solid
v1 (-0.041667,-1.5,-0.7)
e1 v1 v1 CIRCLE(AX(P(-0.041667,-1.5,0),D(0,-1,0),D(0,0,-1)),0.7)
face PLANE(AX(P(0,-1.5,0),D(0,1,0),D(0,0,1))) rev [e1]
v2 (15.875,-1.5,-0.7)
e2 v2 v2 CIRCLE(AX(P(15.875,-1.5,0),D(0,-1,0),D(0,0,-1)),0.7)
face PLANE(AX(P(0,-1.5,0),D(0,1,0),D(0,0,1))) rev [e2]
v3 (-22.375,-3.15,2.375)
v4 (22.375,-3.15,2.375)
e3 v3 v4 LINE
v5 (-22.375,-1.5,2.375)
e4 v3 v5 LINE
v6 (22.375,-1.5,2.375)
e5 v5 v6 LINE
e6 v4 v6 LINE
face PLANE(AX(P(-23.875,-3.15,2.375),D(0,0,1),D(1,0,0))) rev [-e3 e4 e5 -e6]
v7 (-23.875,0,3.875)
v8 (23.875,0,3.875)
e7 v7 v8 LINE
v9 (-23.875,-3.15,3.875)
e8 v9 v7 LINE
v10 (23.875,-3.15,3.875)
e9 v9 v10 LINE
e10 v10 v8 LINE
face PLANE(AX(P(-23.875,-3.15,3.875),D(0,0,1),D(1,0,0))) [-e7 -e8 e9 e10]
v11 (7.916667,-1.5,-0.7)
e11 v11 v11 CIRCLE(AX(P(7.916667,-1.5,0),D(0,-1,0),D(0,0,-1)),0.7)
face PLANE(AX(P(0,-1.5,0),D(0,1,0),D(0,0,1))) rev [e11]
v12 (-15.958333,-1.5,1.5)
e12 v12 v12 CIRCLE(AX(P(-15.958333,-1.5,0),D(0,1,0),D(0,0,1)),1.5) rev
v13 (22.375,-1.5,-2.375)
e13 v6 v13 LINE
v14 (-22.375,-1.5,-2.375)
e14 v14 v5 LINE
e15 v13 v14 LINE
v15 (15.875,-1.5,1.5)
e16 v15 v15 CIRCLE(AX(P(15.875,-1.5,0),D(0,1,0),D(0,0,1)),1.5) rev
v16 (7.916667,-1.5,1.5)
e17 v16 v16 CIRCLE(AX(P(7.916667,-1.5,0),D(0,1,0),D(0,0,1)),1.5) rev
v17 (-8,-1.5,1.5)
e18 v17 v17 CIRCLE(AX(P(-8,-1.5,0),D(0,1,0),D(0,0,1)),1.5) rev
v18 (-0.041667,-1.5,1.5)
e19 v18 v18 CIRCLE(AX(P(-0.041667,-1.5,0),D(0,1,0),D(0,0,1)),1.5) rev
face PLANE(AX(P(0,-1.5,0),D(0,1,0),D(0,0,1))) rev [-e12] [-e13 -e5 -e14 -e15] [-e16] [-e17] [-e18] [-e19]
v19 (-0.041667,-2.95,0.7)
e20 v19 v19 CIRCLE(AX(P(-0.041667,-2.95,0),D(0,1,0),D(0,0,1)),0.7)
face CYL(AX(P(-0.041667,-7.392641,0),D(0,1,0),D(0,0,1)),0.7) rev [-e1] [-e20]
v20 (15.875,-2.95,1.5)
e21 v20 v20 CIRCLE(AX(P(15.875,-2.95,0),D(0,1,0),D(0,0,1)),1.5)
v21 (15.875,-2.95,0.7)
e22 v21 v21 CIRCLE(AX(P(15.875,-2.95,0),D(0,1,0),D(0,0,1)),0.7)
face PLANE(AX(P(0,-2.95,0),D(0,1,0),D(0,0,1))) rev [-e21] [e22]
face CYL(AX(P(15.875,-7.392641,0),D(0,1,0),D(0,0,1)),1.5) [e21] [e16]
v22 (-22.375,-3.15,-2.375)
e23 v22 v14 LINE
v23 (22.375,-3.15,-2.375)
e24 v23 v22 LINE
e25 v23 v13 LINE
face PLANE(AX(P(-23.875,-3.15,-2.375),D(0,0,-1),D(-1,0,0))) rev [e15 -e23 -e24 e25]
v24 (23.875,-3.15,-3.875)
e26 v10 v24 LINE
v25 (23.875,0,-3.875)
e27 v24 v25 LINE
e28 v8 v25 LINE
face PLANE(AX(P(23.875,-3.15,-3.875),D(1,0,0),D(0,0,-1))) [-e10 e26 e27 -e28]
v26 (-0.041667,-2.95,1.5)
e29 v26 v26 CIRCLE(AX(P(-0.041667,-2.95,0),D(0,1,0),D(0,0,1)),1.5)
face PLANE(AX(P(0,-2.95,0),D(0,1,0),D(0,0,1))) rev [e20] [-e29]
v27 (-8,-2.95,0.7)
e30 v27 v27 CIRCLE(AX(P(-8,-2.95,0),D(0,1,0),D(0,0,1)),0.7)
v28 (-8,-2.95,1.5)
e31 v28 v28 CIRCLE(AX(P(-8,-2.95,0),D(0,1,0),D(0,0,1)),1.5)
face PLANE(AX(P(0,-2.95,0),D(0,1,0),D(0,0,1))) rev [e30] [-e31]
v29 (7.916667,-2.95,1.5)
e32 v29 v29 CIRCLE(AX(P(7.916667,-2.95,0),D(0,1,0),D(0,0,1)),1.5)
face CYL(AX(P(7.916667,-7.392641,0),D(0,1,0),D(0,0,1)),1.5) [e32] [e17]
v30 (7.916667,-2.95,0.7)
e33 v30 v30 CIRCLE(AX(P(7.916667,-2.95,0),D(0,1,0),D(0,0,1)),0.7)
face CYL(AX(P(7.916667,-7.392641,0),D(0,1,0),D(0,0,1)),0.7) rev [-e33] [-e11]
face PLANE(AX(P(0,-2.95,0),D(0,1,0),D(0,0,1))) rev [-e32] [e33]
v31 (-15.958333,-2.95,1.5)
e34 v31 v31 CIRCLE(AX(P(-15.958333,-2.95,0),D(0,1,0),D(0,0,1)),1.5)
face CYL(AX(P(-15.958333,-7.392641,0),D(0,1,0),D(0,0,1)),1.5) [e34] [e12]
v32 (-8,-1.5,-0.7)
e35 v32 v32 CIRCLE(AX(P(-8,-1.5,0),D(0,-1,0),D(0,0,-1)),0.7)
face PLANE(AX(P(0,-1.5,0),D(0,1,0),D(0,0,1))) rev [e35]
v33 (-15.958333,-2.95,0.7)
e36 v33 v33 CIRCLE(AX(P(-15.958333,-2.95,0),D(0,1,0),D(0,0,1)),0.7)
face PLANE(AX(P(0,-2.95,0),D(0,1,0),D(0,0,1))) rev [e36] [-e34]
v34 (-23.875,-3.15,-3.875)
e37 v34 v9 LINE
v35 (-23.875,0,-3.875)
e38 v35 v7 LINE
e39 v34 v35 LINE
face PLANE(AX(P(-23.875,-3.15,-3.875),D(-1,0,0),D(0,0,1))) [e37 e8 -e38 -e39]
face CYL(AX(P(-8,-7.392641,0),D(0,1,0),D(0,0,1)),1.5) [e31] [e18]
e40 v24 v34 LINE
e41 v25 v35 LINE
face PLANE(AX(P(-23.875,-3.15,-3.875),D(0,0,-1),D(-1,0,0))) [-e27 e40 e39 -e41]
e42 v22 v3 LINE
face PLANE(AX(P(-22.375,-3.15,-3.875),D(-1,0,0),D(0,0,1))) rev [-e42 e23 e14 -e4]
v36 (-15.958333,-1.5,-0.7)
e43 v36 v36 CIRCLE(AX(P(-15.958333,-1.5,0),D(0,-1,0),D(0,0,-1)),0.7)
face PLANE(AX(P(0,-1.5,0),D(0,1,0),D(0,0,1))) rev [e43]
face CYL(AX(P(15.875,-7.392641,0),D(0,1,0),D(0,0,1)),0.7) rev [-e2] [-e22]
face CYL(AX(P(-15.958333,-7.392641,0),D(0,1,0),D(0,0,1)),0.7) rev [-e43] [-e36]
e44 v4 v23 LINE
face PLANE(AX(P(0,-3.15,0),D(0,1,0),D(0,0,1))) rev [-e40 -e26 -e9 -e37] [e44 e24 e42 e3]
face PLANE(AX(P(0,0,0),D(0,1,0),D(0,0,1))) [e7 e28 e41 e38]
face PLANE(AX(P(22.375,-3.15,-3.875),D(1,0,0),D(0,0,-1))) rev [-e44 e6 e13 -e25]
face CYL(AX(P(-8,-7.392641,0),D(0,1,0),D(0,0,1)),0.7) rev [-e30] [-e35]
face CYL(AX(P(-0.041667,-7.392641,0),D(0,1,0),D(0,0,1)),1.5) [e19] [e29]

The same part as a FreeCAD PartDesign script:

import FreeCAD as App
import Part
import Sketcher
Q = App.Units.Quantity


def faces_at(feature, points):
    """Names of the faces that lie closest to the given points."""
    faces = feature.Shape.Faces
    near = lambda p: min(range(len(faces)), key=lambda i: faces[i].distToShape(Part.Vertex(*p))[0])
    return sorted({f"Face{near(p) + 1}" for p in points})


def add_polygon(sketch, points):
    """Adds a closed chain of lines whose ends are joined by coincident constraints."""
    first, n = sketch.GeometryCount, len(points)
    for a, b in zip(points, points[1:] + points[:1]):
        sketch.addGeometry(Part.LineSegment(App.Vector(*a, 0), App.Vector(*b, 0)), False)
    for i in range(n):
        sketch.addConstraint(Sketcher.Constraint("Coincident", first + i, 2, first + (i + 1) % n, 1))

doc = App.newDocument("Part")
body = doc.addObject("PartDesign::Body", "Body")

# Sketch on XZ plane
sketch1 = body.newObject("Sketcher::SketchObject", "Sketch")
sketch1.AttachmentSupport = (doc.getObject("XZ_Plane"), [""])
sketch1.MapMode = "FlatFace"
add_polygon(sketch1, [(-23.875, -3.875), (-23.875, 3.875), (23.875, 3.875), (23.875, -3.875)])  # lines 0-3
sketch1.addConstraint(Sketcher.Constraint("Vertical", 0))
sketch1.addConstraint(Sketcher.Constraint("Horizontal", 1))
sketch1.addConstraint(Sketcher.Constraint("Vertical", 2))
sketch1.addConstraint(Sketcher.Constraint("Horizontal", 3))
sketch1.addConstraint(Sketcher.Constraint("Symmetric", 0, 2, 2, 2, -1, 1))
sketch1.addConstraint(Sketcher.Constraint("DistanceX", 1, 1, 1, 2, Q("47.75 mm")))
sketch1.addConstraint(Sketcher.Constraint("DistanceY", 0, 1, 0, 2, Q("7.75 mm")))
pad1 = body.newObject("PartDesign::Pad", "Pad")
pad1.Profile = sketch1
pad1.Length = 3.15
doc.recompute()

thickness = body.newObject("PartDesign::Thickness", "Thickness")
thickness.Base = (pad1, faces_at(pad1, [(0, -3.15, 0)]))
thickness.Value = 1.5
thickness.Reversed = True
thickness.Join = "Intersection"

# Sketch on XZ plane
sketch2 = body.newObject("Sketcher::SketchObject", "Sketch001")
sketch2.AttachmentSupport = (doc.getObject("XZ_Plane"), [""])
sketch2.MapMode = "FlatFace"
sketch2.AttachmentOffset = App.Placement(App.Vector(0, 0, 1.5), App.Rotation())
sketch2.addGeometry(Part.Circle(App.Vector(-15.958333, 0, 0), App.Vector(0, 0, 1), 1.5), False)
sketch2.addGeometry(Part.Circle(App.Vector(-15.958333, 0, 0), App.Vector(0, 0, 1), 0.7), False)
sketch2.addGeometry(Part.Circle(App.Vector(-8, 0, 0), App.Vector(0, 0, 1), 1.5), False)
sketch2.addGeometry(Part.Circle(App.Vector(-8, 0, 0), App.Vector(0, 0, 1), 0.7), False)
sketch2.addGeometry(Part.Circle(App.Vector(-0.041667, 0, 0), App.Vector(0, 0, 1), 1.5), False)
sketch2.addGeometry(Part.Circle(App.Vector(-0.041667, 0, 0), App.Vector(0, 0, 1), 0.7), False)
sketch2.addGeometry(Part.Circle(App.Vector(7.916667, 0, 0), App.Vector(0, 0, 1), 1.5), False)
sketch2.addGeometry(Part.Circle(App.Vector(7.916667, 0, 0), App.Vector(0, 0, 1), 0.7), False)
sketch2.addGeometry(Part.Circle(App.Vector(15.875, 0, 0), App.Vector(0, 0, 1), 1.5), False)
sketch2.addGeometry(Part.Circle(App.Vector(15.875, 0, 0), App.Vector(0, 0, 1), 0.7), False)
sketch2.addConstraint(Sketcher.Constraint("Coincident", 1, 3, 0, 3))
sketch2.addConstraint(Sketcher.Constraint("Coincident", 3, 3, 2, 3))
sketch2.addConstraint(Sketcher.Constraint("Coincident", 5, 3, 4, 3))
sketch2.addConstraint(Sketcher.Constraint("Coincident", 7, 3, 6, 3))
sketch2.addConstraint(Sketcher.Constraint("Coincident", 9, 3, 8, 3))
sketch2.addConstraint(Sketcher.Constraint("Equal", 0, 2))
sketch2.addConstraint(Sketcher.Constraint("Equal", 1, 3))
sketch2.addConstraint(Sketcher.Constraint("Equal", 2, 4))
sketch2.addConstraint(Sketcher.Constraint("Equal", 3, 5))
sketch2.addConstraint(Sketcher.Constraint("Equal", 4, 6))
sketch2.addConstraint(Sketcher.Constraint("Equal", 5, 7))
sketch2.addConstraint(Sketcher.Constraint("Equal", 6, 8))
sketch2.addConstraint(Sketcher.Constraint("Equal", 7, 9))
sketch2.addConstraint(Sketcher.Constraint("PointOnObject", 0, 3, -1))
sketch2.addConstraint(Sketcher.Constraint("PointOnObject", 2, 3, -1))
sketch2.addConstraint(Sketcher.Constraint("PointOnObject", 4, 3, -1))
sketch2.addConstraint(Sketcher.Constraint("PointOnObject", 6, 3, -1))
sketch2.addConstraint(Sketcher.Constraint("PointOnObject", 8, 3, -1))
sketch2.addConstraint(Sketcher.Constraint("Diameter", 0, Q("3 mm")))
sketch2.addConstraint(Sketcher.Constraint("Diameter", 1, Q("1.4 mm")))
sketch2.addConstraint(Sketcher.Constraint("DistanceX", 2, 3, -1, 1, Q("8 mm")))
sketch2.addConstraint(Sketcher.Constraint("DistanceX", -1, 1, 8, 3, Q("15.875 mm")))
sketch2.addConstraint(Sketcher.Constraint("DistanceX", 0, 3, 6, 3, Q("23.875 mm")))
sketch2.addConstraint(Sketcher.Constraint("DistanceX", 0, 3, -1, 1, Q("15.958333 mm")))
sketch2.addConstraint(Sketcher.Constraint("DistanceX", 4, 3, -1, 1, Q("0.041667 mm")))
pad2 = body.newObject("PartDesign::Pad", "Pad001")
pad2.Profile = sketch2
pad2.Length = 1.45

doc.recompute()
